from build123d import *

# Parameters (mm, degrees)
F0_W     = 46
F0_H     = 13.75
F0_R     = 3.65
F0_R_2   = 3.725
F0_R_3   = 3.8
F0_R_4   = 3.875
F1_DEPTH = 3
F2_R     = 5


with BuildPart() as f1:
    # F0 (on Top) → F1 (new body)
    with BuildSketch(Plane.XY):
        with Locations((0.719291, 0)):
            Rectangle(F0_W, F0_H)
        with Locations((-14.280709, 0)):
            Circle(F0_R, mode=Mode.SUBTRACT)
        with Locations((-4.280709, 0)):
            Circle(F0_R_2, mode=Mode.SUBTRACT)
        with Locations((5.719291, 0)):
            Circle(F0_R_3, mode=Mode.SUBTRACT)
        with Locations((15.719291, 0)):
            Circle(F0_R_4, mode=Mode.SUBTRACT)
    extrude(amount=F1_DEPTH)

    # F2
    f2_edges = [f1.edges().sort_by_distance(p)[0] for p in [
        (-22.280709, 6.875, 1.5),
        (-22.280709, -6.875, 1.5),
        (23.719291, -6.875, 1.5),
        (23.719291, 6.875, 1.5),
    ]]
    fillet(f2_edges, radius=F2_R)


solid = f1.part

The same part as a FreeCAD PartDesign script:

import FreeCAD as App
import Part
import Sketcher
from FreeCAD import Vector
Q = App.Units.Quantity


def edges_at(feature, points):
    """Names of the edges that pass closest to the given points."""
    edges = feature.Shape.Edges
    near = lambda p: min(range(len(edges)), key=lambda i: edges[i].distToShape(Part.Vertex(*p))[0])
    return sorted({f"Edge{near(p) + 1}" for p in points})

doc = App.newDocument("Part")
body = doc.addObject("PartDesign::Body", "Body")

# Sketch on XY plane
sketch1 = body.newObject("Sketcher::SketchObject", "Sketch")
sketch1.AttachmentSupport = (doc.getObject("XY_Plane"), [""])
sketch1.MapMode = "FlatFace"
sketch1.addGeometry(Part.LineSegment(Vector(-22.280709, 6.875, 0), Vector(-22.280709, -6.875, 0)), False)
sketch1.addGeometry(Part.LineSegment(Vector(-22.280709, -6.875, 0), Vector(23.719291, -6.875, 0)), False)
sketch1.addGeometry(Part.LineSegment(Vector(23.719291, -6.875, 0), Vector(23.719291, 6.875, 0)), False)
sketch1.addGeometry(Part.LineSegment(Vector(23.719291, 6.875, 0), Vector(-22.280709, 6.875, 0)), False)
sketch1.addGeometry(Part.Circle(Vector(-14.280709, 0, 0), Vector(0, 0, 1), 3.65), False)
sketch1.addGeometry(Part.Circle(Vector(-4.280709, 0, 0), Vector(0, 0, 1), 3.725), False)
sketch1.addGeometry(Part.Circle(Vector(5.719291, 0, 0), Vector(0, 0, 1), 3.8), False)
sketch1.addGeometry(Part.Circle(Vector(15.719291, 0, 0), Vector(0, 0, 1), 3.875), False)
sketch1.addConstraint(Sketcher.Constraint("Coincident", 0, 2, 1, 1))
sketch1.addConstraint(Sketcher.Constraint("Coincident", 1, 2, 2, 1))
sketch1.addConstraint(Sketcher.Constraint("Coincident", 2, 2, 3, 1))
sketch1.addConstraint(Sketcher.Constraint("Coincident", 3, 2, 0, 1))
sketch1.addConstraint(Sketcher.Constraint("Vertical", 0))
sketch1.addConstraint(Sketcher.Constraint("Horizontal", 1))
sketch1.addConstraint(Sketcher.Constraint("Vertical", 2))
sketch1.addConstraint(Sketcher.Constraint("Horizontal", 3))
sketch1.addConstraint(Sketcher.Constraint("PointOnObject", 4, 3, -1))
sketch1.addConstraint(Sketcher.Constraint("PointOnObject", 5, 3, -1))
sketch1.addConstraint(Sketcher.Constraint("PointOnObject", 6, 3, -1))
sketch1.addConstraint(Sketcher.Constraint("PointOnObject", 7, 3, -1))
sketch1.addConstraint(Sketcher.Constraint("Diameter", 4, Q("7.3 mm")))
sketch1.addConstraint(Sketcher.Constraint("Diameter", 6, Q("7.6 mm")))
sketch1.addConstraint(Sketcher.Constraint("Diameter", 5, Q("7.45 mm")))
sketch1.addConstraint(Sketcher.Constraint("Diameter", 7, Q("7.75 mm")))
sketch1.addConstraint(Sketcher.Constraint("DistanceX", 1, 1, 1, 2, Q("46 mm")))
sketch1.addConstraint(Sketcher.Constraint("DistanceX", 4, 3, 5, 3, Q("10 mm")))
sketch1.addConstraint(Sketcher.Constraint("DistanceX", 5, 3, 6, 3, Q("10 mm")))
sketch1.addConstraint(Sketcher.Constraint("DistanceX", 6, 3, 7, 3, Q("10 mm")))
sketch1.addConstraint(Sketcher.Constraint("DistanceX", 0, 2, 4, 3, Q("8 mm")))
sketch1.addConstraint(Sketcher.Constraint("DistanceY", 0, 2, 0, 1, Q("13.75 mm")))
sketch1.addConstraint(Sketcher.Constraint("DistanceY", 0, 2, -1, 1, Q("6.875 mm")))
sketch1.addConstraint(Sketcher.Constraint("DistanceX", 4, 3, -1, 1, Q("14.280709 mm")))
pad1 = body.newObject("PartDesign::Pad", "Pad")
pad1.Profile = sketch1
pad1.Length = 3
doc.recompute()

fillet = body.newObject("PartDesign::Fillet", "Fillet")
fillet.Base = (pad1, edges_at(pad1, [
    (-22.281, 6.875, 1.5),
    (-22.281, -6.875, 1.5),
    (23.719, -6.875, 1.5),
    (23.719, 6.875, 1.5),
]))
fillet.Radius = 5

doc.recompute()
